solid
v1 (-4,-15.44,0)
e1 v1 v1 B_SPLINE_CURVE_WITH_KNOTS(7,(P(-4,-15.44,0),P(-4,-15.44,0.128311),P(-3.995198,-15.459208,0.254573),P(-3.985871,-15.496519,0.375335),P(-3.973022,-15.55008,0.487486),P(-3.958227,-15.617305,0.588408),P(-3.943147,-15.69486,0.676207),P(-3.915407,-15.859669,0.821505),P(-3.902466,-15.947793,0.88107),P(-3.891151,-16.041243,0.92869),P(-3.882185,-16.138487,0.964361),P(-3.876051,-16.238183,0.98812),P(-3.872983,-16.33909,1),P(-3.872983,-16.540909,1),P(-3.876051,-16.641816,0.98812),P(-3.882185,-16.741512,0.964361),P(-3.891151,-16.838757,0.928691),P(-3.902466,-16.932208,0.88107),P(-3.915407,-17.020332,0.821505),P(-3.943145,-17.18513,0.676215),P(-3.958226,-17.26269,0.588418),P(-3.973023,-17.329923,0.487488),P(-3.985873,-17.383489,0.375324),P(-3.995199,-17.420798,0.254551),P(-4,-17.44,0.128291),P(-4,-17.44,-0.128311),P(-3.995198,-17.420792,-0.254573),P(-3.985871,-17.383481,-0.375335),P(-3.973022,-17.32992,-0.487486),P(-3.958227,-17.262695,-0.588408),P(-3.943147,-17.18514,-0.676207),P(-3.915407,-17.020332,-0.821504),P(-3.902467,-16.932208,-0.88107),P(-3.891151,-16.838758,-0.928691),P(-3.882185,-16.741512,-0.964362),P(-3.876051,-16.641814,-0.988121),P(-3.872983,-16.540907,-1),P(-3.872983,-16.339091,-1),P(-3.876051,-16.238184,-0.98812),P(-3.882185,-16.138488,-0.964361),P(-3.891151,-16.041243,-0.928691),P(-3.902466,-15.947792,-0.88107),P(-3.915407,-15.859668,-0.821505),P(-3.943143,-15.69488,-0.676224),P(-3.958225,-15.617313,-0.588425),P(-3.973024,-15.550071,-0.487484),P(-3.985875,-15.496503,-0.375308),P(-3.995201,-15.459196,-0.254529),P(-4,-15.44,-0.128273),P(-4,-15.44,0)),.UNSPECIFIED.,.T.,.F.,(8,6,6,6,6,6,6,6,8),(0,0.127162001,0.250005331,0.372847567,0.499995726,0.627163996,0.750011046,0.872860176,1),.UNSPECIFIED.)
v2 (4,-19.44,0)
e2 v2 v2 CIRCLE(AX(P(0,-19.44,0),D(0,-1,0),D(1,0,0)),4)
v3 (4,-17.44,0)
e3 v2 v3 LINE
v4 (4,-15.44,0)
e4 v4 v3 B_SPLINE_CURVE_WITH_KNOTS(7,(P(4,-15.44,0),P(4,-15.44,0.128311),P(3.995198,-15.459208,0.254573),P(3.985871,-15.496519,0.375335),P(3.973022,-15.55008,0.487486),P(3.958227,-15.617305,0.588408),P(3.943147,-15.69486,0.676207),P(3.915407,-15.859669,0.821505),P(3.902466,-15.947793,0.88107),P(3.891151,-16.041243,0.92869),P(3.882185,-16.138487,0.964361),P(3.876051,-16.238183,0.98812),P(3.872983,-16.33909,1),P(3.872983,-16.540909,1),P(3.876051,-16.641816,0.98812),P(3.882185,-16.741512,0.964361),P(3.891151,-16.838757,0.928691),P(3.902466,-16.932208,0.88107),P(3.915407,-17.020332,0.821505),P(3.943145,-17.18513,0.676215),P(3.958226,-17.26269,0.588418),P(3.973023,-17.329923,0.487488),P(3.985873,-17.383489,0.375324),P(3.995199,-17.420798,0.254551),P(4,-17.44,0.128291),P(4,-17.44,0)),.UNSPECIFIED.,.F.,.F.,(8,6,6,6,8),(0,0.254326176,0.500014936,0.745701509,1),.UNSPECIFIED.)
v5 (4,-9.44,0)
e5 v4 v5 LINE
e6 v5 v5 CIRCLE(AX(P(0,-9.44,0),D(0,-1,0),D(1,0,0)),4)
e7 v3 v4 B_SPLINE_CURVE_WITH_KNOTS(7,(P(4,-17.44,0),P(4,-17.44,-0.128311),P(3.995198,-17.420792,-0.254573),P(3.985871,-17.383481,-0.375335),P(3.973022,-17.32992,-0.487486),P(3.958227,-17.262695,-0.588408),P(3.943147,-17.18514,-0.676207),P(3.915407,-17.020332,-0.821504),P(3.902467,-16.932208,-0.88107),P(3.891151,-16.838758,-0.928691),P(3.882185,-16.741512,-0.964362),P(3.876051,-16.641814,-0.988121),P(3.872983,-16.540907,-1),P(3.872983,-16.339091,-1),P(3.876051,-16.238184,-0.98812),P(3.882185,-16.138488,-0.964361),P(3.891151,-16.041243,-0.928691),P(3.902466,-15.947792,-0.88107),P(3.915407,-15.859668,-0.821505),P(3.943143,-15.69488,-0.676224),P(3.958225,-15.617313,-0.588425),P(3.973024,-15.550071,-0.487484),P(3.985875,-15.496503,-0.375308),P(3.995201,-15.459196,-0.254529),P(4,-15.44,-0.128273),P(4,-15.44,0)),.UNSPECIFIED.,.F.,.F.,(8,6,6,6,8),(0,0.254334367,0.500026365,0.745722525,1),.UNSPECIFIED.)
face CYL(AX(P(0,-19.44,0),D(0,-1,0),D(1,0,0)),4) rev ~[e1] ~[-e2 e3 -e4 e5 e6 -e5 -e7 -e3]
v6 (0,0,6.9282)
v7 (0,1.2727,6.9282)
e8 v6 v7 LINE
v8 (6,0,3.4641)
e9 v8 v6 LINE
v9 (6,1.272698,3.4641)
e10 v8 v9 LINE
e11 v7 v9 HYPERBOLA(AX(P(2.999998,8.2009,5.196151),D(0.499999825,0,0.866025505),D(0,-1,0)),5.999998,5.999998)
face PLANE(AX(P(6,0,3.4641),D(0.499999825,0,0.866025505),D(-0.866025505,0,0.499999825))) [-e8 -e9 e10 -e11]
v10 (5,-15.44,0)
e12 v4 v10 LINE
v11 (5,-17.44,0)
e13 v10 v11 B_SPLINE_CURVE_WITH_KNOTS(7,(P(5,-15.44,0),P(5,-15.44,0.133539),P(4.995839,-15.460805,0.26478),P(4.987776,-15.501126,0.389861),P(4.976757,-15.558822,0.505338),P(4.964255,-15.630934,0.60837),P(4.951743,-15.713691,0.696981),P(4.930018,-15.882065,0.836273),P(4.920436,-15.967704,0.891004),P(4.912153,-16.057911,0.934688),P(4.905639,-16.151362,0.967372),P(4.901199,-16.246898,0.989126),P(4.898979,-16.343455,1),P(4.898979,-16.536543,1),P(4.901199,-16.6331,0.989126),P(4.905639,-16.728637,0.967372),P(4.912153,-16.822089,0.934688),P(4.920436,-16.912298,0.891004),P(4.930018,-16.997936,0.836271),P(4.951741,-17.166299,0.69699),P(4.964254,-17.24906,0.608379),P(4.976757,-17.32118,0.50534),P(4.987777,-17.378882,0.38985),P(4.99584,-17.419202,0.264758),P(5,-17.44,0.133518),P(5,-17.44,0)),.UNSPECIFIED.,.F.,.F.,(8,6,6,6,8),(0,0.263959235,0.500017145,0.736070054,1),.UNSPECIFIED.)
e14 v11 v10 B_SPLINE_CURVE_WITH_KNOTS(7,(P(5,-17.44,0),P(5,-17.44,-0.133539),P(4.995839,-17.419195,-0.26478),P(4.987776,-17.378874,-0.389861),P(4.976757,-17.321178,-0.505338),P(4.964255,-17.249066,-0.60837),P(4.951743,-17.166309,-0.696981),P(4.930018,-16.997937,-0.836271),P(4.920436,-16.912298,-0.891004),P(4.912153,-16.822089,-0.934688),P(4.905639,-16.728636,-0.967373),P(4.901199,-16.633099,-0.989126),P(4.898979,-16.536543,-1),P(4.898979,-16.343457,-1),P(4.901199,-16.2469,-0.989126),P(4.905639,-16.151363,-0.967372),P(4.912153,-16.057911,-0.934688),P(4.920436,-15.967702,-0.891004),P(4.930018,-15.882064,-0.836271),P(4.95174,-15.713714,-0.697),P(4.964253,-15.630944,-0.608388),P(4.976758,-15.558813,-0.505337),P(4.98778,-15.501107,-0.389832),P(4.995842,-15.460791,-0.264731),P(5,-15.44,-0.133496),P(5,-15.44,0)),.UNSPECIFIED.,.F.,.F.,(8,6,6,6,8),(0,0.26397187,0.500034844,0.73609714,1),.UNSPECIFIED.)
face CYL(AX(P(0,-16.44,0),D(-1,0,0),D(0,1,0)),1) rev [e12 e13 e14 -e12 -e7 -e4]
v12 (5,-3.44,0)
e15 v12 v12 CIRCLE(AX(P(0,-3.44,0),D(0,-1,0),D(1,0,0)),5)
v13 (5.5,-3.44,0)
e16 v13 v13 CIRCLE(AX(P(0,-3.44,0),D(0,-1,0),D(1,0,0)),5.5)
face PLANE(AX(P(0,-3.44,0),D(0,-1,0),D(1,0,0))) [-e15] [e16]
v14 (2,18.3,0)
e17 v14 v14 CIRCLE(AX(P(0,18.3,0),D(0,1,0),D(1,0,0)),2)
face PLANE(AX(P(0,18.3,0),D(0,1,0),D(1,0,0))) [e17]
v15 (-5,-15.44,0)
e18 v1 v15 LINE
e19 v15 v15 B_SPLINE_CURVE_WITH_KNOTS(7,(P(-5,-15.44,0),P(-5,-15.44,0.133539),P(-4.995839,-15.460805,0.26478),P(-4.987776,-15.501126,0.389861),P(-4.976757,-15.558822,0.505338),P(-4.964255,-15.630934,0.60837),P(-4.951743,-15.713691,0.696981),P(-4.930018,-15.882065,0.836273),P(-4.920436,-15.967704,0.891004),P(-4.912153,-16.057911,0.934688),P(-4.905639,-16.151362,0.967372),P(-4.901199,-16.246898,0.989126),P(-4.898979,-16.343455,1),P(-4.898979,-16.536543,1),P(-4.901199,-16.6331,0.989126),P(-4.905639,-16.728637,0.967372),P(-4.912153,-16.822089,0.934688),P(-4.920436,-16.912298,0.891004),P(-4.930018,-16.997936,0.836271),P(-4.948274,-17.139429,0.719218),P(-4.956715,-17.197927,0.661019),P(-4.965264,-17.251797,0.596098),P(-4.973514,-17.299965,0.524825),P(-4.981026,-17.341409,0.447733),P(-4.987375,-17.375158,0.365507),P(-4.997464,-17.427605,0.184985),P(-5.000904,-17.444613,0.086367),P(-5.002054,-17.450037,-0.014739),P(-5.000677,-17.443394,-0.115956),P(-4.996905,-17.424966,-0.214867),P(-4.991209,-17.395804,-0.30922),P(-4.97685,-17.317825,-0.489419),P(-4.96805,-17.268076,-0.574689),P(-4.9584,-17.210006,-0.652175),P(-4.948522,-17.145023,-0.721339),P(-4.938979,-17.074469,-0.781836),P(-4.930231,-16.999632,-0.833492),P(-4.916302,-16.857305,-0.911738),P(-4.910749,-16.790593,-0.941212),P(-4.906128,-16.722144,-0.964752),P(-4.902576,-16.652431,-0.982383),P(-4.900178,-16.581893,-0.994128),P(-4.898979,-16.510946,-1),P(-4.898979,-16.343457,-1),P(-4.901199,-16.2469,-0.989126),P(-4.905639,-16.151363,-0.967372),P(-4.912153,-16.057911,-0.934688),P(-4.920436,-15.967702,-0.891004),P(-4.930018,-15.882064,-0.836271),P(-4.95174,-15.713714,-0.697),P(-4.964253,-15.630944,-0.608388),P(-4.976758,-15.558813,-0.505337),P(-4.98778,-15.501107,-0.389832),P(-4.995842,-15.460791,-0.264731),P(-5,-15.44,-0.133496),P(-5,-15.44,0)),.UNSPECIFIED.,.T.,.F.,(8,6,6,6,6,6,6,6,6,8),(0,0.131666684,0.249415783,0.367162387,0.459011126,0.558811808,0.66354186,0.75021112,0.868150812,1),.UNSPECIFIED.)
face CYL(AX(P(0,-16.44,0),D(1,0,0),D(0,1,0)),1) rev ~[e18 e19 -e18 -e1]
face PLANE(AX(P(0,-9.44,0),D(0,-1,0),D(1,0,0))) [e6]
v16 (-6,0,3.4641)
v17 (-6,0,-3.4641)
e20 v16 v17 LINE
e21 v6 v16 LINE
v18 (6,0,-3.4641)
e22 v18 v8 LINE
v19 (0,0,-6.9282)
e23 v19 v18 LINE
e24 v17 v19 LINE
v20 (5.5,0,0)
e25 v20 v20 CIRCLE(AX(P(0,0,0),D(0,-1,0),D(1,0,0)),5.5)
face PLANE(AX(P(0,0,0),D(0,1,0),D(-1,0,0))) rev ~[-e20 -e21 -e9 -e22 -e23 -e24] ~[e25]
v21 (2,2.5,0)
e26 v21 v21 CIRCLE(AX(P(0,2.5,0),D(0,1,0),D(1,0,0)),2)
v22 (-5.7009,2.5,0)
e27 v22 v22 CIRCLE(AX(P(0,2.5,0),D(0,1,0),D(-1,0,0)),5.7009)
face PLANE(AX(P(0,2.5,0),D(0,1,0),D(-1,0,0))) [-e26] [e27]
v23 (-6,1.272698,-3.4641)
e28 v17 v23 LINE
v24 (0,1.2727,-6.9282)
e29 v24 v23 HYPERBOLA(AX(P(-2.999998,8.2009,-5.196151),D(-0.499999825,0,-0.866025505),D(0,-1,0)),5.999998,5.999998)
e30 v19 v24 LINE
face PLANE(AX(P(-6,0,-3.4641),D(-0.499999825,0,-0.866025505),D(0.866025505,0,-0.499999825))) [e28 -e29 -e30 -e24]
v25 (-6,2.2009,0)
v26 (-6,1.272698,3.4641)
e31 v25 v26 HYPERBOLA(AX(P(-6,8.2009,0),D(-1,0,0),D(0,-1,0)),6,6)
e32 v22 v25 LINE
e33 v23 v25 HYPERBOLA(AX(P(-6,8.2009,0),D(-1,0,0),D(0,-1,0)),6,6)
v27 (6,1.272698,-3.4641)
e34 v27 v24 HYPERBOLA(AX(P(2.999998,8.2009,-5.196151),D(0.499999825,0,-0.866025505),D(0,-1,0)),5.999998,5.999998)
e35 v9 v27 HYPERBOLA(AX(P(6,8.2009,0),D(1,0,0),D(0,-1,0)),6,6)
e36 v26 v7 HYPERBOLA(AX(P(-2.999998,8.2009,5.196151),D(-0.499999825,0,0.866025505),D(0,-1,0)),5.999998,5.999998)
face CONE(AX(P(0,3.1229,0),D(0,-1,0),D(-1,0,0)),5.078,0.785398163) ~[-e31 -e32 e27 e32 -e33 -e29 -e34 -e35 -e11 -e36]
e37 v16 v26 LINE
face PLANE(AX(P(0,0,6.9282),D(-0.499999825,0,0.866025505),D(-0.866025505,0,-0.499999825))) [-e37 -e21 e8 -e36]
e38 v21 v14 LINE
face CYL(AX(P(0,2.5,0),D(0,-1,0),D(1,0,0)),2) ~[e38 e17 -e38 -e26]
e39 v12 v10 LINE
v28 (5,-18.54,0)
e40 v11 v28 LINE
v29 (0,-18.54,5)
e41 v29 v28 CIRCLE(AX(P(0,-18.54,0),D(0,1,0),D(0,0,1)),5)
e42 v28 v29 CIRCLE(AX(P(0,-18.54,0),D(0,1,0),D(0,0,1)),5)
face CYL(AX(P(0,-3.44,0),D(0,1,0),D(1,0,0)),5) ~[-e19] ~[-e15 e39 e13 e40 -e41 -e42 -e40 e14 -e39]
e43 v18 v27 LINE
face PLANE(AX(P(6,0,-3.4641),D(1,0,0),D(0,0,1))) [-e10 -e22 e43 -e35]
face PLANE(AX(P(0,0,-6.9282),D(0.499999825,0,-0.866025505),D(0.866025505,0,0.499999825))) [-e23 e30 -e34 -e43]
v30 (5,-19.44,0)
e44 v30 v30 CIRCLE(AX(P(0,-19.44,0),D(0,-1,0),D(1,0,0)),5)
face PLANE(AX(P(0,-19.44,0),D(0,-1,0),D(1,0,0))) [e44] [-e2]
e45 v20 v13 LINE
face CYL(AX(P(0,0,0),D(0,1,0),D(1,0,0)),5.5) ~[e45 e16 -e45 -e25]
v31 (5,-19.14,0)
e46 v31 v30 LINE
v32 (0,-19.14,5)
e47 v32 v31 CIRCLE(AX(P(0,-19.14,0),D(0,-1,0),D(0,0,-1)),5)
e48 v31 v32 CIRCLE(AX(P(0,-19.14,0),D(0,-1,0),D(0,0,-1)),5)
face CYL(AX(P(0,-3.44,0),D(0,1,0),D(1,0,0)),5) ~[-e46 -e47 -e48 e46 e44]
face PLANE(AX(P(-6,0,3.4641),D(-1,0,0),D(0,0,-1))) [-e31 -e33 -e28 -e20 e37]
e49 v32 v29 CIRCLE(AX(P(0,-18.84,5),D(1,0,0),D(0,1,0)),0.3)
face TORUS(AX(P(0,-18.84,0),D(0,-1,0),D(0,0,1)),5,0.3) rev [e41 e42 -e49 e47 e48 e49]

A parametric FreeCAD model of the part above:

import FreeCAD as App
import Part
import Sketcher

V = App.Vector
Q = App.Units.Quantity


def add_polygon(sketch, points):
    """Adds a closed chain of lines whose ends are joined by coincident constraints."""
    first, n = sketch.GeometryCount, len(points)
    for a, b in zip(points, points[1:] + points[:1]):
        sketch.addGeometry(Part.LineSegment(App.Vector(*a, 0), App.Vector(*b, 0)), False)
    for i in range(n):
        sketch.addConstraint(Sketcher.Constraint("Coincident", first + i, 2, first + (i + 1) % n, 1))

doc = App.newDocument("Part")
body = doc.addObject("PartDesign::Body", "Body")

# Sketch on XZ plane
sketch1 = body.newObject("Sketcher::SketchObject", "Sketch")
sketch1.AttachmentSupport = (doc.getObject("XZ_Plane"), [""])
sketch1.MapMode = "FlatFace"
add_polygon(sketch1, [(6, -3), (0, -7), (-6, -3), (-6, 3), (0, 7), (6, 3)])  # lines 0-5
sketch1.addConstraint([
    Sketcher.Constraint("Vertical", 2),
    Sketcher.Constraint("Vertical", 5),
    Sketcher.Constraint("Symmetric", 0, 2, 3, 2, -1, 1),
    Sketcher.Constraint("Symmetric", 1, 2, 4, 2, -1, 1),
    Sketcher.Constraint("PointOnObject", 0, 2, -2),
    Sketcher.Constraint("Parallel", 0, 3),
    Sketcher.Constraint("Horizontal", 2, 2, 4, 2),
    Sketcher.Constraint("DistanceX", 2, 2, 4, 2, Q("12 mm")),
    Sketcher.Constraint("Angle", 0, Q("-150 deg")),
    Sketcher.Constraint("DistanceY", 2, 1, 2, 2, Q("6.9282 mm")),
])
pad1 = body.newObject("PartDesign::Pad", "Pad")
pad1.Profile = sketch1
pad1.Length = 2.5
pad1.Reversed = True

# Sketch on XZ plane
sketch2 = body.newObject("Sketcher::SketchObject", "Sketch001")
sketch2.AttachmentSupport = (doc.getObject("XZ_Plane"), [""])
sketch2.MapMode = "FlatFace"
sketch2.AttachmentOffset = App.Placement(V(0, 0, -2.5), App.Rotation())
sketch2.addGeometry(Part.Circle(V(0, 0, 0), V(0, 0, 1), 2), False)
sketch2.addConstraint([
    Sketcher.Constraint("Coincident", 0, 3, -1, 1),
    Sketcher.Constraint("Diameter", 0, Q("4 mm")),
])
pad2 = body.newObject("PartDesign::Pad", "Pad001")
pad2.Profile = sketch2
pad2.Length = 15.8
pad2.Reversed = True

# Sketch on XZ plane
sketch3 = body.newObject("Sketcher::SketchObject", "Sketch002")
sketch3.AttachmentSupport = (doc.getObject("XZ_Plane"), [""])
sketch3.MapMode = "FlatFace"
sketch3.addGeometry(Part.Circle(V(0, 0, 0), V(0, 0, 1), 6), False)
sketch3.addConstraint([
    Sketcher.Constraint("Coincident", 0, 3, -1, 1),
    Sketcher.Constraint("Diameter", 0, Q("11 mm")),
])
pad3 = body.newObject("PartDesign::Pad", "Pad002")
pad3.Profile = sketch3
pad3.Length = 3.44

# Sketch on XZ plane
sketch4 = body.newObject("Sketcher::SketchObject", "Sketch003")
sketch4.AttachmentSupport = (doc.getObject("XZ_Plane"), [""])
sketch4.MapMode = "FlatFace"
sketch4.AttachmentOffset = App.Placement(V(0, 0, 3.44), App.Rotation())
sketch4.addGeometry(Part.Circle(V(0, 0, 0), V(0, 0, 1), 5), False)
sketch4.addConstraint([
    Sketcher.Constraint("Coincident", 0, 3, -1, 1),
    Sketcher.Constraint("Diameter", 0, Q("10 mm")),
])
pad4 = body.newObject("PartDesign::Pad", "Pad003")
pad4.Profile = sketch4
pad4.Length = 16

# Sketch on XZ plane
sketch5 = body.newObject("Sketcher::SketchObject", "Sketch004")
sketch5.AttachmentSupport = (doc.getObject("XZ_Plane"), [""])
sketch5.MapMode = "FlatFace"
sketch5.AttachmentOffset = App.Placement(V(0, 0, 19.44), App.Rotation())
sketch5.addGeometry(Part.Circle(V(0, 0, 0), V(0, 0, 1), 4), False)
sketch5.addConstraint([
    Sketcher.Constraint("Coincident", 0, 3, -1, 1),
    Sketcher.Constraint("Diameter", 0, Q("8 mm")),
])
pocket1 = body.newObject("PartDesign::Pocket", "Pocket")
pocket1.Profile = sketch5
pocket1.Length = 10

# Sketch on YZ plane
sketch6 = body.newObject("Sketcher::SketchObject", "Sketch005")
sketch6.AttachmentSupport = (doc.getObject("YZ_Plane"), [""])
sketch6.MapMode = "FlatFace"
sketch6.addGeometry(Part.Circle(V(-16.4, 0, 0), V(0, 0, 1), 1), False)
sketch6.addConstraint([
    Sketcher.Constraint("PointOnObject", 0, 3, -1),
    Sketcher.Constraint("Diameter", 0, Q("2 mm")),
    Sketcher.Constraint("DistanceX", 0, 3, -1, 1, Q("16.44 mm")),
])
pocket2 = body.newObject("PartDesign::Pocket", "Pocket001")
pocket2.Profile = sketch6
pocket2.Length = 14
pocket2.Midplane = True

# Sketch on YZ plane
sketch7 = body.newObject("Sketcher::SketchObject", "Sketch006")
sketch7.AttachmentSupport = (doc.getObject("YZ_Plane"), [""])
sketch7.MapMode = "FlatFace"
sketch7.addGeometry(Part.Circle(V(-18.84, 5, 0), V(0, 0, 1), 0.3), False)
sketch7.addConstraint([
    Sketcher.Constraint("Diameter", 0, Q("0.6 mm")),
    Sketcher.Constraint("DistanceY", -1, 1, 0, 3, Q("5 mm")),
    Sketcher.Constraint("DistanceX", 0, 3, -1, 1, Q("18.84 mm")),
])
groove = body.newObject("PartDesign::Groove", "Groove")
groove.Profile = sketch7
groove.ReferenceAxis = (sketch7, ["H_Axis"])
groove.Angle = 360

# Sketch on XY plane
sketch8 = body.newObject("Sketcher::SketchObject", "Sketch007")
sketch8.AttachmentSupport = (doc.getObject("XY_Plane"), [""])
sketch8.MapMode = "FlatFace"
add_polygon(sketch8, [(-8, 0.2), (-5.1, 3.1), (-8.4, 3.1)])  # lines 0-2
sketch8.addConstraint([
    Sketcher.Constraint("Horizontal", 1),
    Sketcher.Constraint("Angle", 0, Q("45 deg")),
    Sketcher.Constraint("DistanceX", 1, 2, 1, 1, Q("3.3428 mm")),
    Sketcher.Constraint("DistanceX", 0, 2, -1, 1, Q("5.078 mm")),
    Sketcher.Constraint("DistanceY", -1, 1, 0, 2, Q("3.123 mm")),
    Sketcher.Constraint("Distance", 0, Q("4.1923 mm")),
])
groove2 = body.newObject("PartDesign::Groove", "Groove001")
groove2.Profile = sketch8
groove2.ReferenceAxis = (sketch8, ["V_Axis"])
groove2.Angle = 360

doc.recompute()
